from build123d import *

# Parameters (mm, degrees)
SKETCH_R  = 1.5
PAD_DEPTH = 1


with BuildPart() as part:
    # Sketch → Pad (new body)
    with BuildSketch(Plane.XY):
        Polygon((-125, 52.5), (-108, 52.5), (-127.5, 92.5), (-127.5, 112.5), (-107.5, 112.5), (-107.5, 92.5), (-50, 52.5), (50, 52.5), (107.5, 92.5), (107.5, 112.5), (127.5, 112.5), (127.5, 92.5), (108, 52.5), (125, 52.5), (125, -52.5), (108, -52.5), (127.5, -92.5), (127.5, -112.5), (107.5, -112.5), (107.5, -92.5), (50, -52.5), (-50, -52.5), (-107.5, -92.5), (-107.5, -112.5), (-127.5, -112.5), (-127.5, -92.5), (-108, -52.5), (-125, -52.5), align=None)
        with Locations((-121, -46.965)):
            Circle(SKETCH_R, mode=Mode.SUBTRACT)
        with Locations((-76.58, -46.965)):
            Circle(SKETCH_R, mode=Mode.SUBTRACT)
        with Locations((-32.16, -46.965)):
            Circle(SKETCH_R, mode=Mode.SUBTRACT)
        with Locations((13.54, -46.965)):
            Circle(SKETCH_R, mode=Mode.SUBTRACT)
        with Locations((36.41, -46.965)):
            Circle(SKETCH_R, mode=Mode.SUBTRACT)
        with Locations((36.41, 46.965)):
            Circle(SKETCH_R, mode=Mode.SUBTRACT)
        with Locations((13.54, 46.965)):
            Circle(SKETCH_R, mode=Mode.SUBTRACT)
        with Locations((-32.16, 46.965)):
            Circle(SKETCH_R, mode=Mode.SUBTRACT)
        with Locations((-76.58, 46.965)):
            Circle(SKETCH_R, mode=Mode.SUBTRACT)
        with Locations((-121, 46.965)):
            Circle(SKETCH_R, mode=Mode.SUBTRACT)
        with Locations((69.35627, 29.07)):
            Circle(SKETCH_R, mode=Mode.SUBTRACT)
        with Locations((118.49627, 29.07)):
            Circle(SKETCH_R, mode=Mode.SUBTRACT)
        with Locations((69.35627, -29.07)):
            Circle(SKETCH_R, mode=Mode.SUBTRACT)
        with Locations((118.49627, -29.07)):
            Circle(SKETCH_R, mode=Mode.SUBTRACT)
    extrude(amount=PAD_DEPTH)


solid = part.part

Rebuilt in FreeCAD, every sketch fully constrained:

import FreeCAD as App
import Part
import Sketcher
Q = App.Units.Quantity


def add_polygon(sketch, points):
    """Adds a closed chain of lines whose ends are joined by coincident constraints."""
    first, n = sketch.GeometryCount, len(points)
    for a, b in zip(points, points[1:] + points[:1]):
        sketch.addGeometry(Part.LineSegment(App.Vector(*a, 0), App.Vector(*b, 0)), False)
    for i in range(n):
        sketch.addConstraint(Sketcher.Constraint("Coincident", first + i, 2, first + (i + 1) % n, 1))

doc = App.newDocument("Part")
params = doc.addObject("Spreadsheet::Sheet", "Params")
for row, (alias, value) in enumerate([
    ("sketch1_diameter", "3 mm"),
    ("sketch1_width", "17 mm"),
    ("sketch1_width2", "20 mm"),
    ("sketch1_width3", "100 mm"),
    ("sketch1_height", "105 mm"),
    ("pad1_length", "1 mm"),
], start=1):
    params.set(f"A{row}", alias)
    params.set(f"B{row}", "=" + value)
    params.setAlias(f"B{row}", alias)

body = doc.addObject("PartDesign::Body", "Body")

# Sketch on XY plane
sketch1 = body.newObject("Sketcher::SketchObject", "Sketch")
sketch1.AttachmentSupport = (doc.getObject("XY_Plane"), [""])
sketch1.MapMode = "FlatFace"
add_polygon(sketch1, [(-108, 52.5), (-125, 52.5), (-125, -52.5), (-108, -52.5), (-127.5, -92.5), (-127.5, -112.5), (-107.5, -112.5), (-107.5, -92.5), (-50, -52.5), (50, -52.5), (107.5, -92.5), (107.5, -112.5), (127.5, -112.5), (127.5, -92.5), (108, -52.5), (125, -52.5), (125, 52.5), (108, 52.5), (127.5, 92.5), (127.5, 112.5), (107.5, 112.5), (107.5, 92.5), (50, 52.5), (-50, 52.5), (-107.5, 92.5), (-107.5, 112.5), (-127.5, 112.5), (-127.5, 92.5)])  # lines 0-27
sketch1.addGeometry(Part.Circle(App.Vector(118.5, -29.1, 0), App.Vector(0, 0, 1), 1.5), False)  # 28
sketch1.addGeometry(Part.Circle(App.Vector(69.4, -29.1, 0), App.Vector(0, 0, 1), 1.5), False)  # 29
sketch1.addGeometry(Part.Circle(App.Vector(36.4, -47, 0), App.Vector(0, 0, 1), 1.5), False)  # 30
sketch1.addGeometry(Part.Circle(App.Vector(13.5, -47, 0), App.Vector(0, 0, 1), 1.5), False)  # 31
sketch1.addGeometry(Part.Circle(App.Vector(-32.2, -47, 0), App.Vector(0, 0, 1), 1.5), False)  # 32
sketch1.addGeometry(Part.Circle(App.Vector(-76.6, -47, 0), App.Vector(0, 0, 1), 1.5), False)  # 33
sketch1.addGeometry(Part.Circle(App.Vector(-121, -47, 0), App.Vector(0, 0, 1), 1.5), False)  # 34
sketch1.addGeometry(Part.Circle(App.Vector(118.5, 29.1, 0), App.Vector(0, 0, 1), 1.5), False)  # 35
sketch1.addGeometry(Part.Circle(App.Vector(69.4, 29.1, 0), App.Vector(0, 0, 1), 1.5), False)  # 36
sketch1.addGeometry(Part.Circle(App.Vector(36.4, 47, 0), App.Vector(0, 0, 1), 1.5), False)  # 37
sketch1.addGeometry(Part.Circle(App.Vector(13.5, 47, 0), App.Vector(0, 0, 1), 1.5), False)  # 38
sketch1.addGeometry(Part.Circle(App.Vector(-32.2, 47, 0), App.Vector(0, 0, 1), 1.5), False)  # 39
sketch1.addGeometry(Part.Circle(App.Vector(-76.6, 47, 0), App.Vector(0, 0, 1), 1.5), False)  # 40
sketch1.addGeometry(Part.Circle(App.Vector(-121, 47, 0), App.Vector(0, 0, 1), 1.5), False)  # 41
sketch1.addConstraint([
    Sketcher.Constraint("Horizontal", 0),
    Sketcher.Constraint("Vertical", 1),
    Sketcher.Constraint("Horizontal", 2),
    Sketcher.Constraint("Vertical", 4),
    Sketcher.Constraint("Horizontal", 5),
    Sketcher.Constraint("Vertical", 6),
    Sketcher.Constraint("Horizontal", 8),
    Sketcher.Constraint("Vertical", 10),
    Sketcher.Constraint("Horizontal", 11),
    Sketcher.Constraint("Vertical", 12),
    Sketcher.Constraint("Horizontal", 14),
    Sketcher.Constraint("Vertical", 15),
    Sketcher.Constraint("Horizontal", 16),
    Sketcher.Constraint("Vertical", 18),
    Sketcher.Constraint("Horizontal", 19),
    Sketcher.Constraint("Vertical", 20),
    Sketcher.Constraint("Horizontal", 22),
    Sketcher.Constraint("Vertical", 24),
    Sketcher.Constraint("Horizontal", 25),
    Sketcher.Constraint("Vertical", 26),
    Sketcher.Constraint("Equal", 28, 29),
    Sketcher.Constraint("Equal", 29, 30),
    Sketcher.Constraint("Equal", 30, 31),
    Sketcher.Constraint("Equal", 31, 32),
    Sketcher.Constraint("Equal", 32, 33),
    Sketcher.Constraint("Equal", 33, 34),
    Sketcher.Constraint("Equal", 34, 35),
    Sketcher.Constraint("Equal", 35, 36),
    Sketcher.Constraint("Equal", 36, 37),
    Sketcher.Constraint("Equal", 37, 38),
    Sketcher.Constraint("Equal", 38, 39),
    Sketcher.Constraint("Equal", 39, 40),
    Sketcher.Constraint("Equal", 40, 41),
    Sketcher.Constraint("Symmetric", 0, 2, 14, 2, -1, 1),
    Sketcher.Constraint("Symmetric", 2, 2, 16, 2, -1, 1),
    Sketcher.Constraint("Symmetric", 3, 2, 17, 2, -1, 1),
    Sketcher.Constraint("Symmetric", 5, 2, 19, 2, -1, 1),
    Sketcher.Constraint("Symmetric", 7, 2, 21, 2, -1, 1),
    Sketcher.Constraint("Symmetric", 9, 2, 23, 2, -1, 1),
    Sketcher.Constraint("Symmetric", 11, 2, 25, 2, -1, 1),
    Sketcher.Constraint("Symmetric", 6, 2, 9, 2, -2),
    Sketcher.Constraint("Symmetric", 4, 2, 11, 2, -2),
    Sketcher.Constraint("Symmetric", 2, 2, 13, 2, -2),
    Sketcher.Constraint("Symmetric", 28, 3, 35, 3, -1),
    Sketcher.Constraint("Symmetric", 29, 3, 36, 3, -1),
    Sketcher.Constraint("Symmetric", 30, 3, 37, 3, -1),
    Sketcher.Constraint("Symmetric", 31, 3, 38, 3, -1),
    Sketcher.Constraint("Symmetric", 32, 3, 39, 3, -1),
    Sketcher.Constraint("Symmetric", 33, 3, 40, 3, -1),
    Sketcher.Constraint("Symmetric", 34, 3, 41, 3, -1),
    Sketcher.Constraint("Parallel", 7, 21),
    Sketcher.Constraint("Parallel", 9, 23),
    Sketcher.Constraint("Parallel", 13, 27),
    Sketcher.Constraint("Horizontal", 28, 3, 29, 3),
    Sketcher.Constraint("Horizontal", 30, 3, 31, 3),
    Sketcher.Constraint("Horizontal", 31, 3, 32, 3),
    Sketcher.Constraint("Horizontal", 32, 3, 33, 3),
    Sketcher.Constraint("Horizontal", 33, 3, 34, 3),
    Sketcher.Constraint("Horizontal", 3, 2, 6, 2),
    Sketcher.Constraint("Horizontal", 2, 2, 7, 2),
    Sketcher.Constraint("Horizontal", 9, 2, 12, 2),
    Sketcher.Constraint("Horizontal", 23, 2, 26, 2),
    Sketcher.Constraint("Vertical", 8, 2, 21, 2),
    Sketcher.Constraint("Equal", 25, 4),
    Sketcher.Constraint("Diameter", 28, Q("3 mm")),
    Sketcher.Constraint("DistanceX", 0, 2, 0, 1, Q("17 mm")),
    Sketcher.Constraint("DistanceX", 5, 1, 5, 2, Q("20 mm")),
    Sketcher.Constraint("DistanceX", 8, 1, 8, 2, Q("100 mm")),
    Sketcher.Constraint("DistanceY", 1, 2, 1, 1, Q("105 mm")),
    Sketcher.Constraint("DistanceX", 34, 3, -1, 1, Q("121 mm")),
    Sketcher.Constraint("DistanceX", 0, 2, -1, 1, Q("125 mm")),
    Sketcher.Constraint("DistanceY", 3, 2, 1, 2, Q("40 mm")),
    Sketcher.Constraint("Distance", 3, Q("44.5 mm")),
    Sketcher.Constraint("DistanceX", 32, 3, 31, 3, Q("45.7 mm")),
    Sketcher.Constraint("DistanceY", 28, 3, -1, 1, Q("29.07 mm")),
    Sketcher.Constraint("DistanceX", -1, 1, 30, 3, Q("36.41 mm")),
    Sketcher.Constraint("DistanceX", -1, 1, 31, 3, Q("13.54 mm")),
    Sketcher.Constraint("DistanceX", 33, 3, -1, 1, Q("76.58 mm")),
    Sketcher.Constraint("DistanceX", 29, 3, 28, 3, Q("49.14 mm")),
    Sketcher.Constraint("DistanceY", 30, 3, 37, 3, Q("93.93 mm")),
    Sketcher.Constraint("DistanceX", -1, 1, 28, 3, Q("118.49627 mm")),
])
sketch1.setExpression("Constraints[92]", "Params.sketch1_diameter")
sketch1.setExpression("Constraints[93]", "Params.sketch1_width")
sketch1.setExpression("Constraints[94]", "Params.sketch1_width2")
sketch1.setExpression("Constraints[95]", "Params.sketch1_width3")
sketch1.setExpression("Constraints[96]", "Params.sketch1_height")
pad1 = body.newObject("PartDesign::Pad", "Pad")
pad1.Profile = sketch1
pad1.setExpression("Length", "Params.pad1_length")

doc.recompute()
